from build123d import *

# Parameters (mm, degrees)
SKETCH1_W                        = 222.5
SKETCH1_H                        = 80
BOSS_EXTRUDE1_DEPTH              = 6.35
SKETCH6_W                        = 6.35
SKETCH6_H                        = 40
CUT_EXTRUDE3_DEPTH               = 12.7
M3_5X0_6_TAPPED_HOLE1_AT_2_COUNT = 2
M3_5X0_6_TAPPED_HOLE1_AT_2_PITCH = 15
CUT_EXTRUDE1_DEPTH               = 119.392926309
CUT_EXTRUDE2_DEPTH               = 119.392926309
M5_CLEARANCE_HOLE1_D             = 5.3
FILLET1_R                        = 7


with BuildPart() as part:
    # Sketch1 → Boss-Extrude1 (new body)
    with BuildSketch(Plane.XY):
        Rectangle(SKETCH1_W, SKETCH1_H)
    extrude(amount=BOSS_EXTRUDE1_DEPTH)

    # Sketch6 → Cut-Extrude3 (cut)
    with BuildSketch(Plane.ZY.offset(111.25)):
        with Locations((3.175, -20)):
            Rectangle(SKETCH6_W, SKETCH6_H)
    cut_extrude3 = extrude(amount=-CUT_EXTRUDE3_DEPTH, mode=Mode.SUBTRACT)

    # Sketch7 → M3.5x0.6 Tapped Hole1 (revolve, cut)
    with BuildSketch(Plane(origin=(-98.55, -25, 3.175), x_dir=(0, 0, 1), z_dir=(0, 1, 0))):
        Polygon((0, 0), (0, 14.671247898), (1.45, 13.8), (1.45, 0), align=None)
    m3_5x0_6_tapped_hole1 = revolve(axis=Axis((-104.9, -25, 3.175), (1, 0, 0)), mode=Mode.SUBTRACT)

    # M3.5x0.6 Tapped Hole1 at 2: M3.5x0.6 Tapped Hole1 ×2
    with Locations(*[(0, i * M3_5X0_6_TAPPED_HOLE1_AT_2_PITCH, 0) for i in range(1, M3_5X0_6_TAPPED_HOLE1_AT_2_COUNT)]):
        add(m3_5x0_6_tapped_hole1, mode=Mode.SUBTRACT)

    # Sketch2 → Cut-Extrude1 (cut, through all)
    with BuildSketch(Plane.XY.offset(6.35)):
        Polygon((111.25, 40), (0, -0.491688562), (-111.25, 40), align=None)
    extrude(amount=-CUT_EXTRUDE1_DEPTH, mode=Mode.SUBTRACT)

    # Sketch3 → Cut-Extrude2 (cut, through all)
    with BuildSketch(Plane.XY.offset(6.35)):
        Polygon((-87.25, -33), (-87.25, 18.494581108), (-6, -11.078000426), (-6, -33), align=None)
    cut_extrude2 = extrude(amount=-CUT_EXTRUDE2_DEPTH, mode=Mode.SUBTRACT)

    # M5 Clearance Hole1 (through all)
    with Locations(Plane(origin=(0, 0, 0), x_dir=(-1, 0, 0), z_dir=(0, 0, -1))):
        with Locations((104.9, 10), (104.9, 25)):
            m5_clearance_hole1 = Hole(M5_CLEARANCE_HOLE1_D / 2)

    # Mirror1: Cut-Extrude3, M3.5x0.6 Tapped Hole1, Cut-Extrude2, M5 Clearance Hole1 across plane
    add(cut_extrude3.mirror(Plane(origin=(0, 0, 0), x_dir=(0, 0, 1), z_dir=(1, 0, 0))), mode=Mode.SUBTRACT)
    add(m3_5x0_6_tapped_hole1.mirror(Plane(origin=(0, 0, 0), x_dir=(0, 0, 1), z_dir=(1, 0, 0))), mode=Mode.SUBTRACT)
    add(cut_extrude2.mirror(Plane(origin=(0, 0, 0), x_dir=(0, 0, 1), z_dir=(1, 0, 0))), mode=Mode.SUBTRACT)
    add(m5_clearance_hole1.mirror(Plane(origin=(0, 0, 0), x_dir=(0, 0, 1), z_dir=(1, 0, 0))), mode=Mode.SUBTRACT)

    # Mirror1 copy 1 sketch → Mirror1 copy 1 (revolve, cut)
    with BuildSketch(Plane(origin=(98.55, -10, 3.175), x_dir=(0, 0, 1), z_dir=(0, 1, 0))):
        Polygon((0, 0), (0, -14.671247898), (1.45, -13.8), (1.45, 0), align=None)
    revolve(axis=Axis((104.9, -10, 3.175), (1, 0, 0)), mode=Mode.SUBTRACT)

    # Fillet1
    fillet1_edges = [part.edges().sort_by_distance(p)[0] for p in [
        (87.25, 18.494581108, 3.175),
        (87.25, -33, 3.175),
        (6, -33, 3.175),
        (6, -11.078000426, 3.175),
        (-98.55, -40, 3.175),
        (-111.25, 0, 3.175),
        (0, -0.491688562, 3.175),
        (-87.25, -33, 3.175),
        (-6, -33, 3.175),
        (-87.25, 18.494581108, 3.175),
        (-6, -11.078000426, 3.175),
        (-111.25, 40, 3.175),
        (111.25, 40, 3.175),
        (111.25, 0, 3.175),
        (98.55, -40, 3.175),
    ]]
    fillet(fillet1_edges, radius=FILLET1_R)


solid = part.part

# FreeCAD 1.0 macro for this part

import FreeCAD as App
import Part
import Sketcher
Q = App.Units.Quantity


def edges_at(feature, points):
    """Names of the edges that pass closest to the given points."""
    edges = feature.Shape.Edges
    near = lambda p: min(range(len(edges)), key=lambda i: edges[i].distToShape(Part.Vertex(*p))[0])
    return sorted({f"Edge{near(p) + 1}" for p in points})


def add_polygon(sketch, points):
    """Adds a closed chain of lines whose ends are joined by coincident constraints."""
    first, n = sketch.GeometryCount, len(points)
    for a, b in zip(points, points[1:] + points[:1]):
        sketch.addGeometry(Part.LineSegment(App.Vector(*a, 0), App.Vector(*b, 0)), False)
    for i in range(n):
        sketch.addConstraint(Sketcher.Constraint("Coincident", first + i, 2, first + (i + 1) % n, 1))

doc = App.newDocument("Part")
body = doc.addObject("PartDesign::Body", "Body")

sketch1 = doc.addObject("Sketcher::SketchObject", "Sketch")
body.addObject(sketch1)
sketch1.AttachmentSupport = (doc.XY_Plane, [""])
sketch1.MapMode = "FlatFace"
add_polygon(sketch1, [(-111.25, 40), (-111.25, -40), (111.25, -40), (111.25, 40)])
sketch1.addConstraint([
    Sketcher.Constraint("Vertical", 0),
    Sketcher.Constraint("Horizontal", 1),
    Sketcher.Constraint("Vertical", 2),
    Sketcher.Constraint("Horizontal", 3),
    Sketcher.Constraint("Symmetric", 0, 2, 2, 2, -1, 1),
    Sketcher.Constraint("DistanceY", 0, 2, 0, 1, 80.0),
    Sketcher.Constraint("DistanceX", 1, 1, 1, 2, 222.5),
])
pad1 = doc.addObject("PartDesign::Pad", "Pad")
body.addObject(pad1)
pad1.Profile = sketch1
pad1.Length = 6.35

sketch2 = doc.addObject("Sketcher::SketchObject", "Sketch001")
body.addObject(sketch2)
sketch2.AttachmentSupport = (doc.YZ_Plane, [""])
sketch2.MapMode = "FlatFace"
sketch2.AttachmentOffset = App.Placement(App.Vector(0, 0, -111.25), App.Rotation())
add_polygon(sketch2, [(0, 0), (-40, 0), (-40, 6.35), (0, 6.35)])
sketch2.addConstraint([
    Sketcher.Constraint("Horizontal", 0),
    Sketcher.Constraint("Vertical", 1),
    Sketcher.Constraint("Horizontal", 2),
    Sketcher.Constraint("Vertical", 3),
    Sketcher.Constraint("Coincident", 3, 2, -1, 1),
    Sketcher.Constraint("DistanceX", 0, 2, 0, 1, 40.0),
    Sketcher.Constraint("DistanceY", 1, 1, 1, 2, 6.35),
])
pocket1 = doc.addObject("PartDesign::Pocket", "Pocket")
body.addObject(pocket1)
pocket1.Profile = sketch2
pocket1.Length = 12.7
pocket1.Reversed = True

sketch3 = doc.addObject("Sketcher::SketchObject", "Sketch002")
body.addObject(sketch3)
sketch3.AttachmentSupport = (doc.XZ_Plane, [""])
sketch3.MapMode = "FlatFace"
sketch3.AttachmentOffset = App.Placement(App.Vector(0, 0, 25), App.Rotation())
add_polygon(sketch3, [(-83.878752, 3.175), (-98.55, 3.175), (-98.55, 4.625), (-84.75, 4.625)])
sketch3.addGeometry(Part.LineSegment(App.Vector(-98.55, 3.175, 0), App.Vector(-83.878752, 3.175, 0)), True)
sketch3.addConstraint([
    Sketcher.Constraint("Horizontal", 0),
    Sketcher.Constraint("Vertical", 1),
    Sketcher.Constraint("Horizontal", 2),
    Sketcher.Constraint("Horizontal", 4),
    Sketcher.Constraint("Coincident", 4, 1, 0, 2),
    Sketcher.Constraint("Equal", 0, 4),
    Sketcher.Constraint("Angle", 3, Q("-59 deg")),
    Sketcher.Constraint("DistanceX", 2, 1, 2, 2, 13.8),
    Sketcher.Constraint("DistanceY", 1, 1, 1, 2, 1.45),
    Sketcher.Constraint("DistanceX", 0, 2, -1, 1, 98.55),
    Sketcher.Constraint("DistanceY", -1, 1, 0, 2, 3.175),
])
groove = doc.addObject("PartDesign::Groove", "Groove")
body.addObject(groove)
groove.Profile = sketch3
groove.ReferenceAxis = (sketch3, ["Axis0"])
groove.Angle = 360
doc.recompute()

linearpattern = doc.addObject("PartDesign::LinearPattern", "LinearPattern")
body.addObject(linearpattern)
linearpattern.Originals = [groove]
linearpattern.Direction = (doc.Y_Axis, [""])
linearpattern.Mode = "offset"
linearpattern.Offset = 15
linearpattern.Occurrences = 2
body.Tip = linearpattern

sketch4 = doc.addObject("Sketcher::SketchObject", "Sketch003")
body.addObject(sketch4)
sketch4.AttachmentSupport = (doc.XY_Plane, [""])
sketch4.MapMode = "FlatFace"
sketch4.AttachmentOffset = App.Placement(App.Vector(0, 0, 6.35), App.Rotation())
add_polygon(sketch4, [(0, -0.491689), (111.25, 40), (-111.25, 40)])
sketch4.addConstraint([
    Sketcher.Constraint("Horizontal", 1),
    Sketcher.Constraint("PointOnObject", 2, 2, -2),
    Sketcher.Constraint("Equal", 0, 2),
    Sketcher.Constraint("Angle", 0, Q("20 deg")),
    Sketcher.Constraint("DistanceX", 1, 2, 1, 1, 222.5),
    Sketcher.Constraint("DistanceY", -1, 1, 0, 2, 40.0),
])
pocket2 = doc.addObject("PartDesign::Pocket", "Pocket001")
body.addObject(pocket2)
pocket2.Profile = sketch4
pocket2.Type = "ThroughAll"

sketch5 = doc.addObject("Sketcher::SketchObject", "Sketch004")
body.addObject(sketch5)
sketch5.AttachmentSupport = (doc.XY_Plane, [""])
sketch5.MapMode = "FlatFace"
sketch5.AttachmentOffset = App.Placement(App.Vector(0, 0, 6.35), App.Rotation())
add_polygon(sketch5, [(-87.25, 18.494581), (-87.25, -33), (-6, -33), (-6, -11.078)])
sketch5.addConstraint([
    Sketcher.Constraint("Vertical", 0),
    Sketcher.Constraint("Horizontal", 1),
    Sketcher.Constraint("Vertical", 2),
    Sketcher.Constraint("Angle", 3, Q("160 deg")),
    Sketcher.Constraint("DistanceY", 0, 2, -1, 1, 33.0),
    Sketcher.Constraint("DistanceX", 1, 2, -1, 1, 6.0),
    Sketcher.Constraint("DistanceX", 1, 1, 1, 2, 81.25),
    Sketcher.Constraint("DistanceY", 2, 1, 2, 2, 21.922),
])
pocket3 = doc.addObject("PartDesign::Pocket", "Pocket002")
body.addObject(pocket3)
pocket3.Profile = sketch5
pocket3.Type = "ThroughAll"

sketch6 = doc.addObject("Sketcher::SketchObject", "Sketch005")
body.addObject(sketch6)
sketch6.AttachmentSupport = (doc.XY_Plane, [""])
sketch6.MapMode = "FlatFace"
sketch6.addGeometry([
    Part.Circle(App.Vector(-104.9, 10, 0), App.Vector(0, 0, 1), 2.65),
    Part.Circle(App.Vector(-104.9, 25, 0), App.Vector(0, 0, 1), 2.65),
], False)
sketch6.addConstraint([
    Sketcher.Constraint("Equal", 0, 1),
    Sketcher.Constraint("Vertical", 0, 3, 1, 3),
    Sketcher.Constraint("Diameter", 0, 5.3),
    Sketcher.Constraint("DistanceY", -1, 1, 0, 3, 10.0),
    Sketcher.Constraint("DistanceY", -1, 1, 1, 3, 25.0),
    Sketcher.Constraint("DistanceX", 0, 3, -1, 1, 104.9),
])
doc.recompute()
hole = doc.addObject("PartDesign::Hole", "Hole")
body.addObject(hole)
hole.Profile = sketch6
hole.ThreadType = "None"
hole.Diameter = 5.3
hole.DepthType = "ThroughAll"
hole.Reversed = True
doc.recompute()

mirrored = doc.addObject("PartDesign::Mirrored", "Mirrored")
body.addObject(mirrored)
mirrored.Originals = [pocket1, groove, pocket3, hole]
mirrored.MirrorPlane = (doc.YZ_Plane, [""])
body.Tip = mirrored

sketch7 = doc.addObject("Sketcher::SketchObject", "Sketch006")
body.addObject(sketch7)
sketch7.AttachmentSupport = (doc.XZ_Plane, [""])
sketch7.MapMode = "FlatFace"
sketch7.AttachmentOffset = App.Placement(App.Vector(0, 0, 10), App.Rotation())
add_polygon(sketch7, [(98.55, 3.175), (83.878752, 3.175), (84.75, 4.625), (98.55, 4.625)])
sketch7.addGeometry(Part.LineSegment(App.Vector(83.878752, 3.175, 0), App.Vector(98.55, 3.175, 0)), True)
sketch7.addConstraint([
    Sketcher.Constraint("Horizontal", 0),
    Sketcher.Constraint("Horizontal", 2),
    Sketcher.Constraint("Vertical", 3),
    Sketcher.Constraint("Horizontal", 4),
    Sketcher.Constraint("Coincident", 4, 1, 0, 2),
    Sketcher.Constraint("Vertical", 2, 2, 4, 2),
    Sketcher.Constraint("Angle", 1, Q("59 deg")),
    Sketcher.Constraint("DistanceX", 2, 1, 2, 2, 13.8),
    Sketcher.Constraint("DistanceY", 3, 2, 3, 1, 1.45),
    Sketcher.Constraint("DistanceX", -1, 1, 1, 2, 84.75),
    Sketcher.Constraint("DistanceY", -1, 1, 0, 2, 3.175),
])
groove2 = doc.addObject("PartDesign::Groove", "Groove001")
body.addObject(groove2)
groove2.Profile = sketch7
groove2.ReferenceAxis = (sketch7, ["Axis0"])
groove2.Angle = 360
doc.recompute()

fillet = doc.addObject("PartDesign::Fillet", "Fillet")
body.addObject(fillet)
fillet.Base = (groove2, edges_at(groove2, [
    (87.25, 18.495, 3.175),
    (87.25, -33, 3.175),
    (6, -33, 3.175),
    (6, -11.078, 3.175),
    (-98.55, -40, 3.175),
    (-111.25, 0, 3.175),
    (0, -0.492, 3.175),
    (-87.25, -33, 3.175),
    (-6, -33, 3.175),
    (-87.25, 18.495, 3.175),
    (-6, -11.078, 3.175),
    (-111.25, 40, 3.175),
    (111.25, 40, 3.175),
    (111.25, 0, 3.175),
    (98.55, -40, 3.175),
]))
fillet.Radius = 7

doc.recompute()
